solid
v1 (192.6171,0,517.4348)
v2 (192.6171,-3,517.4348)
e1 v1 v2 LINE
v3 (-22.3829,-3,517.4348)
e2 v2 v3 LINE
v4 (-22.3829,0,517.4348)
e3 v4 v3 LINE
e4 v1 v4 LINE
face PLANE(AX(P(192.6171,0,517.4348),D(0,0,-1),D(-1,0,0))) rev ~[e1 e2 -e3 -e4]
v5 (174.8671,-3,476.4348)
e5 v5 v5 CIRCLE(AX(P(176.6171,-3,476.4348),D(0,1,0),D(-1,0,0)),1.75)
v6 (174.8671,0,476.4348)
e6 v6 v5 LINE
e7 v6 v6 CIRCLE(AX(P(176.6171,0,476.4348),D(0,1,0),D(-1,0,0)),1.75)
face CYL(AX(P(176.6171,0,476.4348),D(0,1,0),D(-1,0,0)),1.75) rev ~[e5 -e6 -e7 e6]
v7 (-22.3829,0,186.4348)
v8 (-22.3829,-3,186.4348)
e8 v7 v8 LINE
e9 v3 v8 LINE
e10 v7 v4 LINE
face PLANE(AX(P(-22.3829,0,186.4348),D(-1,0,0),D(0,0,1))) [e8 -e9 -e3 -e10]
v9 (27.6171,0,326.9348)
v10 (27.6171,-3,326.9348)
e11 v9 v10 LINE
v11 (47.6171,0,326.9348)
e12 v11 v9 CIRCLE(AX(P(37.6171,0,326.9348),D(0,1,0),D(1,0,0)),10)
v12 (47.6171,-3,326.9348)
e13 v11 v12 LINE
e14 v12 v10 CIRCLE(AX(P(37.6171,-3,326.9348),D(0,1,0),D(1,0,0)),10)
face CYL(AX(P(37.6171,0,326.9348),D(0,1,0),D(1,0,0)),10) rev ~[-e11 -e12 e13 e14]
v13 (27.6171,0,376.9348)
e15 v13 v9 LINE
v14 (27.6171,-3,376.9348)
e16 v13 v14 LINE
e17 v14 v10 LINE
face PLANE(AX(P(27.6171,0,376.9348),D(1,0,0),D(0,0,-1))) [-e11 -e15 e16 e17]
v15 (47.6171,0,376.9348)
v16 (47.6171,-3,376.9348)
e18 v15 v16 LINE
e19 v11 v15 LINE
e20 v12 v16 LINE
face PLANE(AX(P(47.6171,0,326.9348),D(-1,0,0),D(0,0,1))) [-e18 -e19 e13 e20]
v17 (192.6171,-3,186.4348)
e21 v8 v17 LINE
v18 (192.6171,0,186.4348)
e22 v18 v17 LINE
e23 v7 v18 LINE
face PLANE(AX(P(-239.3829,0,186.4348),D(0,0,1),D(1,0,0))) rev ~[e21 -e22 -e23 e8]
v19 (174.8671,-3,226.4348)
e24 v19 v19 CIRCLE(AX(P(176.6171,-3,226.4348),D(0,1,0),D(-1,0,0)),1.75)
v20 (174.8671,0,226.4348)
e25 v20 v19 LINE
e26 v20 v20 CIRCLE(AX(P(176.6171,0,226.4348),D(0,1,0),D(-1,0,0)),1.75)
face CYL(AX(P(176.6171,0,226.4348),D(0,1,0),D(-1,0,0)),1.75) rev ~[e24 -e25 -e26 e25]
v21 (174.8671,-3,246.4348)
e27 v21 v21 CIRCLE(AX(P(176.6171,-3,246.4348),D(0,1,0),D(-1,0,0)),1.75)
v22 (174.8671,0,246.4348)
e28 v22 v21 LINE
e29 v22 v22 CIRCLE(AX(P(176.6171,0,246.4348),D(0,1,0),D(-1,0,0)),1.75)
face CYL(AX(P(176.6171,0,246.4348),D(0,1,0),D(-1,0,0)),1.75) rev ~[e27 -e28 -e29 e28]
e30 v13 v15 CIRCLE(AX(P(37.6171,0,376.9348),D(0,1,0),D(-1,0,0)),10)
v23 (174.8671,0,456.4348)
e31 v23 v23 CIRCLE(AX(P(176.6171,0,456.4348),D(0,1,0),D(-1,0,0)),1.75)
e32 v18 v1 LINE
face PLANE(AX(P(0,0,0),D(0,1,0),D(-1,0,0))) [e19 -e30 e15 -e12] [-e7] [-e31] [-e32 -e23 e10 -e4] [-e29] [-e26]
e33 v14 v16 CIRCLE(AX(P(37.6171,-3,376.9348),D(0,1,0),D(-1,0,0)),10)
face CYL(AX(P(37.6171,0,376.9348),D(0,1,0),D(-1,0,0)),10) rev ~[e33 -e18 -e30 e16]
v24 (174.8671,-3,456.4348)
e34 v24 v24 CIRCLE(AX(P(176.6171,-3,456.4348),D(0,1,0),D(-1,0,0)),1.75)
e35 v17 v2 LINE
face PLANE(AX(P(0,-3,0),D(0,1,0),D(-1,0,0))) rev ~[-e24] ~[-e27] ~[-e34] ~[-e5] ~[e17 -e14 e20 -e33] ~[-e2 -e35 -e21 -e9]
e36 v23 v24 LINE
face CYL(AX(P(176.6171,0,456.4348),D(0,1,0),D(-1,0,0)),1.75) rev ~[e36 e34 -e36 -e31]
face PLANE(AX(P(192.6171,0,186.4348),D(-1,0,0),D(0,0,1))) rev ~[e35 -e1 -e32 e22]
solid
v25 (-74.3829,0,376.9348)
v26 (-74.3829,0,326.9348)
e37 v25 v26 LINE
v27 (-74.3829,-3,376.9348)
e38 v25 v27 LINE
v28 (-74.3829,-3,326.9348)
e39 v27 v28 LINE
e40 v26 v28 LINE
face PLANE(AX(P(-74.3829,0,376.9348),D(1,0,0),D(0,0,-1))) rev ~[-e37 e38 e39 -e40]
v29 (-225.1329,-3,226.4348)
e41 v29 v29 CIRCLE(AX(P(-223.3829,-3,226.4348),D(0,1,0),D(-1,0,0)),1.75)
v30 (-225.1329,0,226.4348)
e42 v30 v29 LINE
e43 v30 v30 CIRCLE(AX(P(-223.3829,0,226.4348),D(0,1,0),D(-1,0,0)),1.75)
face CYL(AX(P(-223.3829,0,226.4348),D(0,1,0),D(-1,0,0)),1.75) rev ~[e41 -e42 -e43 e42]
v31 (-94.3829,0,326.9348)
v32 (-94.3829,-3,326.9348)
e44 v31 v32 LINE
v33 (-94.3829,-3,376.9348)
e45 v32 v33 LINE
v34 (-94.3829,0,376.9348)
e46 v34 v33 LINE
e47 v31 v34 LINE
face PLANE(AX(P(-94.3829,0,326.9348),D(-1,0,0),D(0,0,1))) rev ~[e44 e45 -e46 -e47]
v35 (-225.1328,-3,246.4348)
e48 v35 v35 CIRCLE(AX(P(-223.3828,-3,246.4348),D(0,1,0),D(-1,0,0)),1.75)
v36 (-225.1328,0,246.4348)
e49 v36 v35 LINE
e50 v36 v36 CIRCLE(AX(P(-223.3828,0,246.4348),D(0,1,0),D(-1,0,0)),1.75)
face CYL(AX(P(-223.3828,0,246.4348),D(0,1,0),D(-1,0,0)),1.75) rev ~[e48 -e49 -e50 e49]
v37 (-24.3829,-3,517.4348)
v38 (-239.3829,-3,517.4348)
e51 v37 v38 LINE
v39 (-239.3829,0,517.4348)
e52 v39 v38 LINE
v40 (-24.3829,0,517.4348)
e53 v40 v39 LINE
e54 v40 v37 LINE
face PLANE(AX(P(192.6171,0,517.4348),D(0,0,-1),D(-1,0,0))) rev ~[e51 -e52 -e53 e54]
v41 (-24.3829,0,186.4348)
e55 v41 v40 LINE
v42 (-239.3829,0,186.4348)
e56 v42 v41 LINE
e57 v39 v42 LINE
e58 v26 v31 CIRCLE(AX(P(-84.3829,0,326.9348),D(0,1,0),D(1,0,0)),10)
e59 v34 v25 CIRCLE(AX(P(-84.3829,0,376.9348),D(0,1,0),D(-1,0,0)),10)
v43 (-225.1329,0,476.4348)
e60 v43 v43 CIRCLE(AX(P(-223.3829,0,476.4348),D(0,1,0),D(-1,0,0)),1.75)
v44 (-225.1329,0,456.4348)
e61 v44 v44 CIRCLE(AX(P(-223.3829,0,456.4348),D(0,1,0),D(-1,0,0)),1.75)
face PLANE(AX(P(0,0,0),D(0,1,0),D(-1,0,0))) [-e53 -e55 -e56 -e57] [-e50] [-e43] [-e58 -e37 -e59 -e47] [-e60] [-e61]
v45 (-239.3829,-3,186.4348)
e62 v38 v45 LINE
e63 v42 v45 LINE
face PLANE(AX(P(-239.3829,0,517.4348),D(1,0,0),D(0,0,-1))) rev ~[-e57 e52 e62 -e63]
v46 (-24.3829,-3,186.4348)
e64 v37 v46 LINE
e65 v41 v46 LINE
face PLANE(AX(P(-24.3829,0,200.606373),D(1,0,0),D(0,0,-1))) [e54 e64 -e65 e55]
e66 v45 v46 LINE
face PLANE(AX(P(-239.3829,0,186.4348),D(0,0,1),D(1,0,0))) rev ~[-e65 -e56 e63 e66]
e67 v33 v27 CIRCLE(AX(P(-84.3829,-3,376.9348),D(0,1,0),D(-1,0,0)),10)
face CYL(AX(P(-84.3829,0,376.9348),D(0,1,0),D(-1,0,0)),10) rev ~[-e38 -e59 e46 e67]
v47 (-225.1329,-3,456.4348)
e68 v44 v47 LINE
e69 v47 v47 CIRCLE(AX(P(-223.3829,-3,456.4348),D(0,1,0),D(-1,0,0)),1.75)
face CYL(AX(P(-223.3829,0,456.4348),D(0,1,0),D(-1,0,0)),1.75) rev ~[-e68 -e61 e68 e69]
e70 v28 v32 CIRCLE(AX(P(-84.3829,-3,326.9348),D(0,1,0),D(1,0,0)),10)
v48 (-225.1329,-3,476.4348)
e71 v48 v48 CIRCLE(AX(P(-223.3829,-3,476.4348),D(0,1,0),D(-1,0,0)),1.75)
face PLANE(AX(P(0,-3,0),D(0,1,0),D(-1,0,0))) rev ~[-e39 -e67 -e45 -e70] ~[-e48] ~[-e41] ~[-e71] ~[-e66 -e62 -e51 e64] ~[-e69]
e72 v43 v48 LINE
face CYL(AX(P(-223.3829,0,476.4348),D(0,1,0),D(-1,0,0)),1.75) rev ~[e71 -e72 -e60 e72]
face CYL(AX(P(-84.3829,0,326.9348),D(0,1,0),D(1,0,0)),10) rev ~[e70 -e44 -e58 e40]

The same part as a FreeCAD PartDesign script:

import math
import FreeCAD as App
import Part
import Sketcher
from FreeCAD import Vector
Q = App.Units.Quantity

doc = App.newDocument("Part")
body = doc.addObject("PartDesign::Body", "Body")
body.AllowCompound = True

sketch1 = doc.addObject("Sketcher::SketchObject", "Sketch")
body.addObject(sketch1)
sketch1.AttachmentSupport = (doc.XZ_Plane, [""])
sketch1.MapMode = "FlatFace"
sketch1.addGeometry(Part.LineSegment(Vector(-239.4, 517.4, 0), Vector(192.6, 517.4, 0)), False)
sketch1.addGeometry(Part.LineSegment(Vector(192.6, 517.4, 0), Vector(192.6, 186.4, 0)), False)
sketch1.addGeometry(Part.LineSegment(Vector(192.6, 186.4, 0), Vector(-239.4, 186.4, 0)), False)
sketch1.addGeometry(Part.LineSegment(Vector(-239.4, 186.4, 0), Vector(-239.4, 517.4, 0)), False)
sketch1.addGeometry(Part.Circle(Vector(176.6, 226.4, 0), Vector(0, 0, 1), 1.8), False)
sketch1.addGeometry(Part.Circle(Vector(176.6, 246.4, 0), Vector(0, 0, 1), 1.8), False)
sketch1.addGeometry(Part.Circle(Vector(-223.4, 226.4, 0), Vector(0, 0, 1), 1.8), False)
sketch1.addGeometry(Part.Circle(Vector(-223.4, 246.4, 0), Vector(0, 0, 1), 1.8), False)
sketch1.addGeometry(Part.Circle(Vector(176.6, 456.4, 0), Vector(0, 0, 1), 1.8), False)
sketch1.addGeometry(Part.Circle(Vector(176.6, 476.4, 0), Vector(0, 0, 1), 1.8), False)
sketch1.addGeometry(Part.Circle(Vector(-223.4, 456.4, 0), Vector(0, 0, 1), 1.8), False)
sketch1.addGeometry(Part.Circle(Vector(-223.4, 476.4, 0), Vector(0, 0, 1), 1.8), False)
sketch1.addConstraint(Sketcher.Constraint("Coincident", 0, 2, 1, 1))
sketch1.addConstraint(Sketcher.Constraint("Coincident", 1, 2, 2, 1))
sketch1.addConstraint(Sketcher.Constraint("Coincident", 2, 2, 3, 1))
sketch1.addConstraint(Sketcher.Constraint("Coincident", 3, 2, 0, 1))
sketch1.addConstraint(Sketcher.Constraint("Horizontal", 0))
sketch1.addConstraint(Sketcher.Constraint("Vertical", 1))
sketch1.addConstraint(Sketcher.Constraint("Horizontal", 2))
sketch1.addConstraint(Sketcher.Constraint("Vertical", 3))
sketch1.addConstraint(Sketcher.Constraint("Equal", 4, 5))
sketch1.addConstraint(Sketcher.Constraint("Equal", 5, 6))
sketch1.addConstraint(Sketcher.Constraint("Equal", 6, 7))
sketch1.addConstraint(Sketcher.Constraint("Equal", 7, 8))
sketch1.addConstraint(Sketcher.Constraint("Equal", 8, 9))
sketch1.addConstraint(Sketcher.Constraint("Equal", 9, 10))
sketch1.addConstraint(Sketcher.Constraint("Equal", 10, 11))
sketch1.addConstraint(Sketcher.Constraint("Horizontal", 4, 3, 6, 3))
sketch1.addConstraint(Sketcher.Constraint("Horizontal", 5, 3, 7, 3))
sketch1.addConstraint(Sketcher.Constraint("Horizontal", 8, 3, 10, 3))
sketch1.addConstraint(Sketcher.Constraint("Horizontal", 9, 3, 11, 3))
sketch1.addConstraint(Sketcher.Constraint("Vertical", 4, 3, 5, 3))
sketch1.addConstraint(Sketcher.Constraint("Vertical", 6, 3, 7, 3))
sketch1.addConstraint(Sketcher.Constraint("Vertical", 5, 3, 8, 3))
sketch1.addConstraint(Sketcher.Constraint("Vertical", 8, 3, 9, 3))
sketch1.addConstraint(Sketcher.Constraint("Vertical", 7, 3, 10, 3))
sketch1.addConstraint(Sketcher.Constraint("Vertical", 10, 3, 11, 3))
sketch1.addConstraint(Sketcher.Constraint("Diameter", 4, Q("3.5 mm")))
sketch1.addConstraint(Sketcher.Constraint("DistanceX", 0, 1, 0, 2, Q("432 mm")))
sketch1.addConstraint(Sketcher.Constraint("DistanceY", 1, 2, 1, 1, Q("331 mm")))
sketch1.addConstraint(Sketcher.Constraint("DistanceY", 4, 3, 5, 3, Q("20 mm")))
sketch1.addConstraint(Sketcher.Constraint("DistanceX", 6, 3, 4, 3, Q("400 mm")))
sketch1.addConstraint(Sketcher.Constraint("DistanceY", 5, 3, 8, 3, Q("210 mm")))
sketch1.addConstraint(Sketcher.Constraint("DistanceY", 8, 3, 9, 3, Q("20 mm")))
sketch1.addConstraint(Sketcher.Constraint("DistanceX", 9, 3, 0, 2, Q("16 mm")))
sketch1.addConstraint(Sketcher.Constraint("DistanceY", 9, 3, 0, 2, Q("41 mm")))
sketch1.addConstraint(Sketcher.Constraint("DistanceX", -1, 1, 4, 3, Q("176.617 mm")))
sketch1.addConstraint(Sketcher.Constraint("DistanceY", -1, 1, 4, 3, Q("226.4348 mm")))
pad1 = doc.addObject("PartDesign::Pad", "Pad")
body.addObject(pad1)
pad1.Profile = sketch1
pad1.Length = 3

sketch2 = doc.addObject("Sketcher::SketchObject", "Sketch001")
body.addObject(sketch2)
sketch2.AttachmentSupport = (doc.XZ_Plane, [""])
sketch2.MapMode = "FlatFace"
sketch2.addGeometry(Part.LineSegment(Vector(-22.4, 186.4, 0), Vector(-24.4, 186.4, 0)), False)
sketch2.addGeometry(Part.LineSegment(Vector(-24.4, 186.4, 0), Vector(-24.4, 517.4, 0)), False)
sketch2.addGeometry(Part.LineSegment(Vector(-24.4, 517.4, 0), Vector(-22.4, 517.4, 0)), False)
sketch2.addGeometry(Part.LineSegment(Vector(-22.4, 517.4, 0), Vector(-22.4, 186.4, 0)), False)
sketch2.addGeometry(Part.LineSegment(Vector(27.6, 326.9, 0), Vector(27.6, 376.9, 0)), False)
sketch2.addGeometry(Part.ArcOfCircle(Part.Circle(Vector(37.6, 376.9, 0), Vector(0, 0, 1), 10), math.radians(0), math.radians(180)), False)
sketch2.addGeometry(Part.LineSegment(Vector(47.6, 376.9, 0), Vector(47.6, 326.9, 0)), False)
sketch2.addGeometry(Part.ArcOfCircle(Part.Circle(Vector(37.6, 326.9, 0), Vector(0, 0, 1), 10), math.radians(180), math.radians(360)), False)
sketch2.addGeometry(Part.ArcOfCircle(Part.Circle(Vector(-84.4, 376.9, 0), Vector(0, 0, 1), 10), math.radians(0), math.radians(180)), False)
sketch2.addGeometry(Part.LineSegment(Vector(-74.4, 376.9, 0), Vector(-74.4, 326.9, 0)), False)
sketch2.addGeometry(Part.ArcOfCircle(Part.Circle(Vector(-84.4, 326.9, 0), Vector(0, 0, 1), 10), math.radians(180), math.radians(360)), False)
sketch2.addGeometry(Part.LineSegment(Vector(-94.4, 326.9, 0), Vector(-94.4, 376.9, 0)), False)
sketch2.addConstraint(Sketcher.Constraint("Coincident", 0, 2, 1, 1))
sketch2.addConstraint(Sketcher.Constraint("Coincident", 1, 2, 2, 1))
sketch2.addConstraint(Sketcher.Constraint("Coincident", 2, 2, 3, 1))
sketch2.addConstraint(Sketcher.Constraint("Coincident", 3, 2, 0, 1))
sketch2.addConstraint(Sketcher.Constraint("Tangent", 4, 2, 5, 2))
sketch2.addConstraint(Sketcher.Constraint("Tangent", 5, 1, 6, 1))
sketch2.addConstraint(Sketcher.Constraint("Tangent", 6, 2, 7, 2))
sketch2.addConstraint(Sketcher.Constraint("Tangent", 7, 1, 4, 1))
sketch2.addConstraint(Sketcher.Constraint("Tangent", 8, 1, 9, 1))
sketch2.addConstraint(Sketcher.Constraint("Tangent", 9, 2, 10, 2))
sketch2.addConstraint(Sketcher.Constraint("Tangent", 10, 1, 11, 1))
sketch2.addConstraint(Sketcher.Constraint("Tangent", 11, 2, 8, 2))
sketch2.addConstraint(Sketcher.Constraint("Horizontal", 0))
sketch2.addConstraint(Sketcher.Constraint("Vertical", 1))
sketch2.addConstraint(Sketcher.Constraint("Horizontal", 2))
sketch2.addConstraint(Sketcher.Constraint("Vertical", 3))
sketch2.addConstraint(Sketcher.Constraint("Vertical", 4))
sketch2.addConstraint(Sketcher.Constraint("Vertical", 6))
sketch2.addConstraint(Sketcher.Constraint("Vertical", 9))
sketch2.addConstraint(Sketcher.Constraint("Vertical", 11))
sketch2.addConstraint(Sketcher.Constraint("Equal", 7, 8))
sketch2.addConstraint(Sketcher.Constraint("Horizontal", 5, 3, 8, 3))
sketch2.addConstraint(Sketcher.Constraint("Horizontal", 7, 3, 10, 3))
sketch2.addConstraint(Sketcher.Constraint("Radius", 5, Q("10 mm")))
sketch2.addConstraint(Sketcher.Constraint("DistanceY", 4, 1, 4, 2, Q("50 mm")))
sketch2.addConstraint(Sketcher.Constraint("DistanceX", 2, 2, 4, 2, Q("50 mm")))
sketch2.addConstraint(Sketcher.Constraint("DistanceX", 0, 2, 0, 1, Q("2 mm")))
sketch2.addConstraint(Sketcher.Constraint("DistanceY", 1, 1, 1, 2, Q("331 mm")))
sketch2.addConstraint(Sketcher.Constraint("DistanceX", 8, 3, 5, 3, Q("122 mm")))
sketch2.addConstraint(Sketcher.Constraint("DistanceY", 0, 2, 10, 3, Q("140.5 mm")))
sketch2.addConstraint(Sketcher.Constraint("DistanceX", -1, 1, 5, 3, Q("37.617 mm")))
sketch2.addConstraint(Sketcher.Constraint("DistanceY", -1, 1, 5, 3, Q("376.9348 mm")))
pocket1 = doc.addObject("PartDesign::Pocket", "Pocket")
body.addObject(pocket1)
pocket1.Profile = sketch2
pocket1.Length = 3
pocket1.Reversed = True

doc.recompute()
